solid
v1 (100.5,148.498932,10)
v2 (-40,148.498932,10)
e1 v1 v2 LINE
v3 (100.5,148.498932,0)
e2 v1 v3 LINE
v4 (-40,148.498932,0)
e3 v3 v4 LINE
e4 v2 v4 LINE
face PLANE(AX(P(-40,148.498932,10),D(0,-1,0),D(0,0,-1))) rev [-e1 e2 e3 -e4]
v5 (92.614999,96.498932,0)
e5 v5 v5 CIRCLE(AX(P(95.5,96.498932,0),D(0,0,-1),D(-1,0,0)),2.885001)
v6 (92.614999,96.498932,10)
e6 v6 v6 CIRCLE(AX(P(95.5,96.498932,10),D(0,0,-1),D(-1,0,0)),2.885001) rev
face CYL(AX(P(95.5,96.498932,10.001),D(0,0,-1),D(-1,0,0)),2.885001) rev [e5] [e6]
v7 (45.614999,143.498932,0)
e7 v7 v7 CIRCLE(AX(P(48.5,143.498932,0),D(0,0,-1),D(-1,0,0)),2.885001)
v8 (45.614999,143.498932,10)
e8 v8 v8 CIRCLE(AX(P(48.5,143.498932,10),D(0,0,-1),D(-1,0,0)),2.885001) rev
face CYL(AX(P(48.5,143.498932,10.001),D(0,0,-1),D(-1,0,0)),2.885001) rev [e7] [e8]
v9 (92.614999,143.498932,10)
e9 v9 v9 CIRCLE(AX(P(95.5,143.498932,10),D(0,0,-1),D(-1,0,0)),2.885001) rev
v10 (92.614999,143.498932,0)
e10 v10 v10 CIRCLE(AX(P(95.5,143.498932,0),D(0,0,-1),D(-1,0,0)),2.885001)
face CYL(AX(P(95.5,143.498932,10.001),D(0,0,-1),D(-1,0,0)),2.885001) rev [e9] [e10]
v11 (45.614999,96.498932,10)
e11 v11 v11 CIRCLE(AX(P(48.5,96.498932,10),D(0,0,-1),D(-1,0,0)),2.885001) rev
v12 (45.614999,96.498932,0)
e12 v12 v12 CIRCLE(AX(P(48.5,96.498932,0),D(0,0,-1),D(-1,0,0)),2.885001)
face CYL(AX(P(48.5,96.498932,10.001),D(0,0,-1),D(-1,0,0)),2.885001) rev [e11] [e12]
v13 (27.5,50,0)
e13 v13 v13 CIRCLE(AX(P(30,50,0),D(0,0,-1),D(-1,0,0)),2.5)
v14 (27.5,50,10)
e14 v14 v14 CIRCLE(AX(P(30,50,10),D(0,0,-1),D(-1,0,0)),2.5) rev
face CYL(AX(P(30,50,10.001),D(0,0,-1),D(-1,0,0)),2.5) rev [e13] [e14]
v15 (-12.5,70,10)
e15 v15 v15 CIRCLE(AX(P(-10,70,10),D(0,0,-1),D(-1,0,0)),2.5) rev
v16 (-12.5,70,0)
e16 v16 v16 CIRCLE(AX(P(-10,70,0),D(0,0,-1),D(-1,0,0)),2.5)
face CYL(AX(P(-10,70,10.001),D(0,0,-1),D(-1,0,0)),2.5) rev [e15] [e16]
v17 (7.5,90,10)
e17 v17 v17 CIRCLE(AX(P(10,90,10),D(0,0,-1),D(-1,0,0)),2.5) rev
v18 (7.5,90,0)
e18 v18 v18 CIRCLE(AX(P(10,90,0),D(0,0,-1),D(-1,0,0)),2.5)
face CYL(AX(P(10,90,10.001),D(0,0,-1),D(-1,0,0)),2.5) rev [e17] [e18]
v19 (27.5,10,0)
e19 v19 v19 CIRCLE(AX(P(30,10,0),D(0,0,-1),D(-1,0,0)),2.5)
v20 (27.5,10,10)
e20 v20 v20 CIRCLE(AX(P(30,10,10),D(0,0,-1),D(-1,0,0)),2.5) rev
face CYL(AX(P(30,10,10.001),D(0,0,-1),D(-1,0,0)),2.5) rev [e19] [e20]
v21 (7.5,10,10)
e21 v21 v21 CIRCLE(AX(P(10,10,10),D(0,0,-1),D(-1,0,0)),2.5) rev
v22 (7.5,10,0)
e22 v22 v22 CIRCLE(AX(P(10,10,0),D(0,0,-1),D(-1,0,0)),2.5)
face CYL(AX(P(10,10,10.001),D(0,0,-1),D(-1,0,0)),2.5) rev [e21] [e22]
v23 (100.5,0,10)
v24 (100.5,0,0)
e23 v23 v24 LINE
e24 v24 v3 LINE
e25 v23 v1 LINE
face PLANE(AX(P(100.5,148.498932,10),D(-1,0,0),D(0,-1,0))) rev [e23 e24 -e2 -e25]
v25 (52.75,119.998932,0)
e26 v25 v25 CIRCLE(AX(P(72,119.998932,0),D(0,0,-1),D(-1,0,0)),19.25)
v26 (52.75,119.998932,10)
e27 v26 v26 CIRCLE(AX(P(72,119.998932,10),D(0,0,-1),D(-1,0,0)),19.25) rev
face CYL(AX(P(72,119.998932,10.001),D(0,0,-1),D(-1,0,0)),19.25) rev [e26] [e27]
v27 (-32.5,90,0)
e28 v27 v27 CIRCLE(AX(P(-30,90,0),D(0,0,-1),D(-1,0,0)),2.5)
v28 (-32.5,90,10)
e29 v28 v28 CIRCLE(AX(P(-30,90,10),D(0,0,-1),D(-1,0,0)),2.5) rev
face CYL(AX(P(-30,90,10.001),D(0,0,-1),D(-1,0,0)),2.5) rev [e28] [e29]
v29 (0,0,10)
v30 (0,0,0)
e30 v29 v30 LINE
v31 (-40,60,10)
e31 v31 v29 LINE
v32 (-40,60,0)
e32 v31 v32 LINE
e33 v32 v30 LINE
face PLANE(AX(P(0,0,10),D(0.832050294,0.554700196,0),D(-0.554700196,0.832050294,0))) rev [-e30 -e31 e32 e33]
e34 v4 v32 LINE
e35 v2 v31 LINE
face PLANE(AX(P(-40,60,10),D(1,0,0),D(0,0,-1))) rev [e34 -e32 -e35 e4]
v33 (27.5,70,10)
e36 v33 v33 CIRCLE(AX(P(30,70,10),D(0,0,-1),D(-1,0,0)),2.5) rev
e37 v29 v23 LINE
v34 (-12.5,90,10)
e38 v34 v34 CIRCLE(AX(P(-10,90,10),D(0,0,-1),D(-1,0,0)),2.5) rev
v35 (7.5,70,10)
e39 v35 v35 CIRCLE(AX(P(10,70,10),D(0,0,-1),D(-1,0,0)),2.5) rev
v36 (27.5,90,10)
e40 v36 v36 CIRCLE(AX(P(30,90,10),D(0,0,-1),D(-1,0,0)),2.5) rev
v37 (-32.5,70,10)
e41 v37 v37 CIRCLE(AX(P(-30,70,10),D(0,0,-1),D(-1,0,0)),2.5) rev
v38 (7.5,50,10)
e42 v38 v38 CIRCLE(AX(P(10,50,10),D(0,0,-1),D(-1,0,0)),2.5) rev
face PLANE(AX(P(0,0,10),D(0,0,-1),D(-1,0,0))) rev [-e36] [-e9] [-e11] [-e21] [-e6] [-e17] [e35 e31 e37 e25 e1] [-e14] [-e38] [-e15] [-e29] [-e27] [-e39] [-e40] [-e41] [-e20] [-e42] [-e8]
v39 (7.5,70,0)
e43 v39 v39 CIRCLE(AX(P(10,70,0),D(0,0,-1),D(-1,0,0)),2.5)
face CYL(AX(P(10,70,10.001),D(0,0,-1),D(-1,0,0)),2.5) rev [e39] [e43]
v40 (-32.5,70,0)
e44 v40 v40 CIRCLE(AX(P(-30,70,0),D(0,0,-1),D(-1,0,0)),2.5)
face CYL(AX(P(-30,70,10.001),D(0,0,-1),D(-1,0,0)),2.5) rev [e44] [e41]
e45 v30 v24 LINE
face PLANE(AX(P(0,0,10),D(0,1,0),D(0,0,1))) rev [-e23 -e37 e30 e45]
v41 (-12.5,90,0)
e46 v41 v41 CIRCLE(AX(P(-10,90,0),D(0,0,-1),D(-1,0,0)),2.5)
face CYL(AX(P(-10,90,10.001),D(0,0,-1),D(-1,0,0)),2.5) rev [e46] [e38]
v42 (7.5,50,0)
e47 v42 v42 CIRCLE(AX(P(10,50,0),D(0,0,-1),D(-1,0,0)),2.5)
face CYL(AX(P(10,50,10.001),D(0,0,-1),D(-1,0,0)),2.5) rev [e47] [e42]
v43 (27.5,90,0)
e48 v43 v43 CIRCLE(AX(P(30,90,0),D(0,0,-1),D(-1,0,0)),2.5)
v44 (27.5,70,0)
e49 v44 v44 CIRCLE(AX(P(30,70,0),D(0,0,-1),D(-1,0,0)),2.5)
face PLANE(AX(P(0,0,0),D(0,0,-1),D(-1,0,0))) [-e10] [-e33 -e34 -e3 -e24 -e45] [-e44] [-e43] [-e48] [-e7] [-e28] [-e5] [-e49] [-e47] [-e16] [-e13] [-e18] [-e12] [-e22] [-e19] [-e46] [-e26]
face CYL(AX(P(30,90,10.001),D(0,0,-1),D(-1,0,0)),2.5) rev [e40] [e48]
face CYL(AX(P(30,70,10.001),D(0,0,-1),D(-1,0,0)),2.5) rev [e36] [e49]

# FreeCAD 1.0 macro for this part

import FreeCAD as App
import Part
import Sketcher
Q = App.Units.Quantity


def add_polygon(sketch, points):
    """Adds a closed chain of lines whose ends are joined by coincident constraints."""
    first, n = sketch.GeometryCount, len(points)
    for a, b in zip(points, points[1:] + points[:1]):
        sketch.addGeometry(Part.LineSegment(App.Vector(*a, 0), App.Vector(*b, 0)), False)
    for i in range(n):
        sketch.addConstraint(Sketcher.Constraint("Coincident", first + i, 2, first + (i + 1) % n, 1))

doc = App.newDocument("Part")
body = doc.addObject("PartDesign::Body", "Body")

sketch1 = doc.addObject("Sketcher::SketchObject", "Sketch")
body.addObject(sketch1)
sketch1.AttachmentSupport = (doc.XY_Plane, [""])
sketch1.MapMode = "FlatFace"
add_polygon(sketch1, [(0, 0), (100, 0), (100, 148), (-40, 148), (-40, 60)])
sketch1.addConstraint([
    Sketcher.Constraint("Horizontal", 0),
    Sketcher.Constraint("Vertical", 1),
    Sketcher.Constraint("Horizontal", 2),
    Sketcher.Constraint("Vertical", 3),
    Sketcher.Constraint("Coincident", 4, 2, -1, 1),
    Sketcher.Constraint("DistanceX", 0, 1, 0, 2, Q("100.5 mm")),
    Sketcher.Constraint("DistanceX", 2, 2, 2, 1, Q("140.5 mm")),
    Sketcher.Constraint("DistanceY", -1, 1, 3, 2, Q("60 mm")),
    Sketcher.Constraint("DistanceY", 1, 1, 1, 2, Q("148.498932 mm")),
])
pad1 = doc.addObject("PartDesign::Pad", "Pad")
body.addObject(pad1)
pad1.Profile = sketch1
pad1.Length = 10

sketch2 = doc.addObject("Sketcher::SketchObject", "Sketch001")
body.addObject(sketch2)
sketch2.AttachmentSupport = (doc.XY_Plane, [""])
sketch2.MapMode = "FlatFace"
sketch2.addGeometry(Part.Circle(App.Vector(72, 120, 0), App.Vector(0, 0, 1), 19), False)
sketch2.addConstraint([
    Sketcher.Constraint("Diameter", 0, Q("38.5 mm")),
    Sketcher.Constraint("DistanceX", -1, 1, 0, 3, Q("72 mm")),
    Sketcher.Constraint("DistanceY", -1, 1, 0, 3, Q("119.998932 mm")),
])
pocket1 = doc.addObject("PartDesign::Pocket", "Pocket")
body.addObject(pocket1)
pocket1.Profile = sketch2
pocket1.Type = "UpToFirst"
pocket1.Reversed = True

sketch3 = doc.addObject("Sketcher::SketchObject", "Sketch002")
body.addObject(sketch3)
sketch3.AttachmentSupport = (doc.XY_Plane, [""])
sketch3.MapMode = "FlatFace"
sketch3.addGeometry(Part.Circle(App.Vector(30, 50, 0), App.Vector(0, 0, 1), 2.5), False)
sketch3.addConstraint([
    Sketcher.Constraint("Diameter", 0, Q("5 mm")),
    Sketcher.Constraint("DistanceX", -1, 1, 0, 3, Q("30 mm")),
    Sketcher.Constraint("DistanceY", -1, 1, 0, 3, Q("50 mm")),
])
pocket2 = doc.addObject("PartDesign::Pocket", "Pocket001")
body.addObject(pocket2)
pocket2.Profile = sketch3
pocket2.Type = "UpToFirst"
pocket2.Reversed = True

sketch4 = doc.addObject("Sketcher::SketchObject", "Sketch003")
body.addObject(sketch4)
sketch4.AttachmentSupport = (doc.XY_Plane, [""])
sketch4.MapMode = "FlatFace"
sketch4.addGeometry(Part.Circle(App.Vector(10, 50, 0), App.Vector(0, 0, 1), 2.5), False)
sketch4.addConstraint([
    Sketcher.Constraint("Diameter", 0, Q("5 mm")),
    Sketcher.Constraint("DistanceX", -1, 1, 0, 3, Q("10 mm")),
    Sketcher.Constraint("DistanceY", -1, 1, 0, 3, Q("50 mm")),
])
pocket3 = doc.addObject("PartDesign::Pocket", "Pocket002")
body.addObject(pocket3)
pocket3.Profile = sketch4
pocket3.Type = "UpToFirst"
pocket3.Reversed = True

sketch5 = doc.addObject("Sketcher::SketchObject", "Sketch004")
body.addObject(sketch5)
sketch5.AttachmentSupport = (doc.XY_Plane, [""])
sketch5.MapMode = "FlatFace"
sketch5.addGeometry(Part.Circle(App.Vector(30, 10, 0), App.Vector(0, 0, 1), 2.5), False)
sketch5.addConstraint([
    Sketcher.Constraint("Diameter", 0, Q("5 mm")),
    Sketcher.Constraint("DistanceX", -1, 1, 0, 3, Q("30 mm")),
    Sketcher.Constraint("DistanceY", -1, 1, 0, 3, Q("10 mm")),
])
pocket4 = doc.addObject("PartDesign::Pocket", "Pocket003")
body.addObject(pocket4)
pocket4.Profile = sketch5
pocket4.Type = "UpToFirst"
pocket4.Reversed = True

sketch6 = doc.addObject("Sketcher::SketchObject", "Sketch005")
body.addObject(sketch6)
sketch6.AttachmentSupport = (doc.XY_Plane, [""])
sketch6.MapMode = "FlatFace"
sketch6.addGeometry(Part.Circle(App.Vector(10, 10, 0), App.Vector(0, 0, 1), 2.5), False)
sketch6.addConstraint([
    Sketcher.Constraint("Diameter", 0, Q("5 mm")),
    Sketcher.Constraint("DistanceX", -1, 1, 0, 3, Q("10 mm")),
    Sketcher.Constraint("DistanceY", -1, 1, 0, 3, Q("10 mm")),
])
pocket5 = doc.addObject("PartDesign::Pocket", "Pocket004")
body.addObject(pocket5)
pocket5.Profile = sketch6
pocket5.Type = "UpToFirst"
pocket5.Reversed = True

sketch7 = doc.addObject("Sketcher::SketchObject", "Sketch006")
body.addObject(sketch7)
sketch7.AttachmentSupport = (doc.XY_Plane, [""])
sketch7.MapMode = "FlatFace"
sketch7.addGeometry(Part.Circle(App.Vector(-30, 70, 0), App.Vector(0, 0, 1), 2.5), False)
sketch7.addConstraint([
    Sketcher.Constraint("Diameter", 0, Q("5 mm")),
    Sketcher.Constraint("DistanceX", 0, 3, -1, 1, Q("30 mm")),
    Sketcher.Constraint("DistanceY", -1, 1, 0, 3, Q("70 mm")),
])
pocket6 = doc.addObject("PartDesign::Pocket", "Pocket005")
body.addObject(pocket6)
pocket6.Profile = sketch7
pocket6.Type = "UpToFirst"
pocket6.Reversed = True

sketch8 = doc.addObject("Sketcher::SketchObject", "Sketch007")
body.addObject(sketch8)
sketch8.AttachmentSupport = (doc.XY_Plane, [""])
sketch8.MapMode = "FlatFace"
sketch8.addGeometry(Part.Circle(App.Vector(-30, 90, 0), App.Vector(0, 0, 1), 2.5), False)
sketch8.addConstraint([
    Sketcher.Constraint("Diameter", 0, Q("5 mm")),
    Sketcher.Constraint("DistanceX", 0, 3, -1, 1, Q("30 mm")),
    Sketcher.Constraint("DistanceY", -1, 1, 0, 3, Q("90 mm")),
])
pocket7 = doc.addObject("PartDesign::Pocket", "Pocket006")
body.addObject(pocket7)
pocket7.Profile = sketch8
pocket7.Type = "UpToFirst"
pocket7.Reversed = True

sketch9 = doc.addObject("Sketcher::SketchObject", "Sketch008")
body.addObject(sketch9)
sketch9.AttachmentSupport = (doc.XY_Plane, [""])
sketch9.MapMode = "FlatFace"
sketch9.addGeometry(Part.Circle(App.Vector(-10, 90, 0), App.Vector(0, 0, 1), 2.5), False)
sketch9.addConstraint([
    Sketcher.Constraint("Diameter", 0, Q("5 mm")),
    Sketcher.Constraint("DistanceX", 0, 3, -1, 1, Q("10 mm")),
    Sketcher.Constraint("DistanceY", -1, 1, 0, 3, Q("90 mm")),
])
pocket8 = doc.addObject("PartDesign::Pocket", "Pocket007")
body.addObject(pocket8)
pocket8.Profile = sketch9
pocket8.Type = "UpToFirst"
pocket8.Reversed = True

sketch10 = doc.addObject("Sketcher::SketchObject", "Sketch009")
body.addObject(sketch10)
sketch10.AttachmentSupport = (doc.XY_Plane, [""])
sketch10.MapMode = "FlatFace"
sketch10.addGeometry(Part.Circle(App.Vector(-10, 70, 0), App.Vector(0, 0, 1), 2.5), False)
sketch10.addConstraint([
    Sketcher.Constraint("Diameter", 0, Q("5 mm")),
    Sketcher.Constraint("DistanceX", 0, 3, -1, 1, Q("10 mm")),
    Sketcher.Constraint("DistanceY", -1, 1, 0, 3, Q("70 mm")),
])
pocket9 = doc.addObject("PartDesign::Pocket", "Pocket008")
body.addObject(pocket9)
pocket9.Profile = sketch10
pocket9.Type = "UpToFirst"
pocket9.Reversed = True

sketch11 = doc.addObject("Sketcher::SketchObject", "Sketch010")
body.addObject(sketch11)
sketch11.AttachmentSupport = (doc.XY_Plane, [""])
sketch11.MapMode = "FlatFace"
sketch11.addGeometry(Part.Circle(App.Vector(10, 70, 0), App.Vector(0, 0, 1), 2.5), False)
sketch11.addConstraint([
    Sketcher.Constraint("Diameter", 0, Q("5 mm")),
    Sketcher.Constraint("DistanceX", -1, 1, 0, 3, Q("10 mm")),
    Sketcher.Constraint("DistanceY", -1, 1, 0, 3, Q("70 mm")),
])
pocket10 = doc.addObject("PartDesign::Pocket", "Pocket009")
body.addObject(pocket10)
pocket10.Profile = sketch11
pocket10.Type = "UpToFirst"
pocket10.Reversed = True

sketch12 = doc.addObject("Sketcher::SketchObject", "Sketch011")
body.addObject(sketch12)
sketch12.AttachmentSupport = (doc.XY_Plane, [""])
sketch12.MapMode = "FlatFace"
sketch12.addGeometry(Part.Circle(App.Vector(10, 90, 0), App.Vector(0, 0, 1), 2.5), False)
sketch12.addConstraint([
    Sketcher.Constraint("Diameter", 0, Q("5 mm")),
    Sketcher.Constraint("DistanceX", -1, 1, 0, 3, Q("10 mm")),
    Sketcher.Constraint("DistanceY", -1, 1, 0, 3, Q("90 mm")),
])
pocket11 = doc.addObject("PartDesign::Pocket", "Pocket010")
body.addObject(pocket11)
pocket11.Profile = sketch12
pocket11.Type = "UpToFirst"
pocket11.Reversed = True

sketch13 = doc.addObject("Sketcher::SketchObject", "Sketch012")
body.addObject(sketch13)
sketch13.AttachmentSupport = (doc.XY_Plane, [""])
sketch13.MapMode = "FlatFace"
sketch13.addGeometry(Part.Circle(App.Vector(30, 90, 0), App.Vector(0, 0, 1), 2.5), False)
sketch13.addConstraint([
    Sketcher.Constraint("Diameter", 0, Q("5 mm")),
    Sketcher.Constraint("DistanceX", -1, 1, 0, 3, Q("30 mm")),
    Sketcher.Constraint("DistanceY", -1, 1, 0, 3, Q("90 mm")),
])
pocket12 = doc.addObject("PartDesign::Pocket", "Pocket011")
body.addObject(pocket12)
pocket12.Profile = sketch13
pocket12.Type = "UpToFirst"
pocket12.Reversed = True

sketch14 = doc.addObject("Sketcher::SketchObject", "Sketch013")
body.addObject(sketch14)
sketch14.AttachmentSupport = (doc.XY_Plane, [""])
sketch14.MapMode = "FlatFace"
sketch14.addGeometry(Part.Circle(App.Vector(30, 70, 0), App.Vector(0, 0, 1), 2.5), False)
sketch14.addConstraint([
    Sketcher.Constraint("Diameter", 0, Q("5 mm")),
    Sketcher.Constraint("DistanceX", -1, 1, 0, 3, Q("30 mm")),
    Sketcher.Constraint("DistanceY", -1, 1, 0, 3, Q("70 mm")),
])
pocket13 = doc.addObject("PartDesign::Pocket", "Pocket012")
body.addObject(pocket13)
pocket13.Profile = sketch14
pocket13.Type = "UpToFirst"
pocket13.Reversed = True

sketch15 = doc.addObject("Sketcher::SketchObject", "Sketch014")
body.addObject(sketch15)
sketch15.AttachmentSupport = (doc.XY_Plane, [""])
sketch15.MapMode = "FlatFace"
sketch15.addGeometry(Part.Circle(App.Vector(95.5, 143.5, 0), App.Vector(0, 0, 1), 2.9), False)
sketch15.addConstraint([
    Sketcher.Constraint("Diameter", 0, Q("5.770002 mm")),
    Sketcher.Constraint("DistanceX", -1, 1, 0, 3, Q("95.5 mm")),
    Sketcher.Constraint("DistanceY", -1, 1, 0, 3, Q("143.498932 mm")),
])
pocket14 = doc.addObject("PartDesign::Pocket", "Pocket013")
body.addObject(pocket14)
pocket14.Profile = sketch15
pocket14.Type = "UpToFirst"
pocket14.Reversed = True

sketch16 = doc.addObject("Sketcher::SketchObject", "Sketch015")
body.addObject(sketch16)
sketch16.AttachmentSupport = (doc.XY_Plane, [""])
sketch16.MapMode = "FlatFace"
sketch16.addGeometry(Part.Circle(App.Vector(48.5, 143.5, 0), App.Vector(0, 0, 1), 2.9), False)
sketch16.addConstraint([
    Sketcher.Constraint("Diameter", 0, Q("5.770002 mm")),
    Sketcher.Constraint("DistanceX", -1, 1, 0, 3, Q("48.5 mm")),
    Sketcher.Constraint("DistanceY", -1, 1, 0, 3, Q("143.498932 mm")),
])
pocket15 = doc.addObject("PartDesign::Pocket", "Pocket014")
body.addObject(pocket15)
pocket15.Profile = sketch16
pocket15.Type = "UpToFirst"
pocket15.Reversed = True

sketch17 = doc.addObject("Sketcher::SketchObject", "Sketch016")
body.addObject(sketch17)
sketch17.AttachmentSupport = (doc.XY_Plane, [""])
sketch17.MapMode = "FlatFace"
sketch17.addGeometry(Part.Circle(App.Vector(48.5, 96.5, 0), App.Vector(0, 0, 1), 2.9), False)
sketch17.addConstraint([
    Sketcher.Constraint("Diameter", 0, Q("5.770002 mm")),
    Sketcher.Constraint("DistanceX", -1, 1, 0, 3, Q("48.5 mm")),
    Sketcher.Constraint("DistanceY", -1, 1, 0, 3, Q("96.498932 mm")),
])
pocket16 = doc.addObject("PartDesign::Pocket", "Pocket015")
body.addObject(pocket16)
pocket16.Profile = sketch17
pocket16.Type = "UpToFirst"
pocket16.Reversed = True

sketch18 = doc.addObject("Sketcher::SketchObject", "Sketch017")
body.addObject(sketch18)
sketch18.AttachmentSupport = (doc.XY_Plane, [""])
sketch18.MapMode = "FlatFace"
sketch18.addGeometry(Part.Circle(App.Vector(95.5, 96.5, 0), App.Vector(0, 0, 1), 2.9), False)
sketch18.addConstraint([
    Sketcher.Constraint("Diameter", 0, Q("5.770002 mm")),
    Sketcher.Constraint("DistanceX", -1, 1, 0, 3, Q("95.5 mm")),
    Sketcher.Constraint("DistanceY", -1, 1, 0, 3, Q("96.498932 mm")),
])
pocket17 = doc.addObject("PartDesign::Pocket", "Pocket016")
body.addObject(pocket17)
pocket17.Profile = sketch18
pocket17.Type = "UpToFirst"
pocket17.Reversed = True

doc.recompute()
